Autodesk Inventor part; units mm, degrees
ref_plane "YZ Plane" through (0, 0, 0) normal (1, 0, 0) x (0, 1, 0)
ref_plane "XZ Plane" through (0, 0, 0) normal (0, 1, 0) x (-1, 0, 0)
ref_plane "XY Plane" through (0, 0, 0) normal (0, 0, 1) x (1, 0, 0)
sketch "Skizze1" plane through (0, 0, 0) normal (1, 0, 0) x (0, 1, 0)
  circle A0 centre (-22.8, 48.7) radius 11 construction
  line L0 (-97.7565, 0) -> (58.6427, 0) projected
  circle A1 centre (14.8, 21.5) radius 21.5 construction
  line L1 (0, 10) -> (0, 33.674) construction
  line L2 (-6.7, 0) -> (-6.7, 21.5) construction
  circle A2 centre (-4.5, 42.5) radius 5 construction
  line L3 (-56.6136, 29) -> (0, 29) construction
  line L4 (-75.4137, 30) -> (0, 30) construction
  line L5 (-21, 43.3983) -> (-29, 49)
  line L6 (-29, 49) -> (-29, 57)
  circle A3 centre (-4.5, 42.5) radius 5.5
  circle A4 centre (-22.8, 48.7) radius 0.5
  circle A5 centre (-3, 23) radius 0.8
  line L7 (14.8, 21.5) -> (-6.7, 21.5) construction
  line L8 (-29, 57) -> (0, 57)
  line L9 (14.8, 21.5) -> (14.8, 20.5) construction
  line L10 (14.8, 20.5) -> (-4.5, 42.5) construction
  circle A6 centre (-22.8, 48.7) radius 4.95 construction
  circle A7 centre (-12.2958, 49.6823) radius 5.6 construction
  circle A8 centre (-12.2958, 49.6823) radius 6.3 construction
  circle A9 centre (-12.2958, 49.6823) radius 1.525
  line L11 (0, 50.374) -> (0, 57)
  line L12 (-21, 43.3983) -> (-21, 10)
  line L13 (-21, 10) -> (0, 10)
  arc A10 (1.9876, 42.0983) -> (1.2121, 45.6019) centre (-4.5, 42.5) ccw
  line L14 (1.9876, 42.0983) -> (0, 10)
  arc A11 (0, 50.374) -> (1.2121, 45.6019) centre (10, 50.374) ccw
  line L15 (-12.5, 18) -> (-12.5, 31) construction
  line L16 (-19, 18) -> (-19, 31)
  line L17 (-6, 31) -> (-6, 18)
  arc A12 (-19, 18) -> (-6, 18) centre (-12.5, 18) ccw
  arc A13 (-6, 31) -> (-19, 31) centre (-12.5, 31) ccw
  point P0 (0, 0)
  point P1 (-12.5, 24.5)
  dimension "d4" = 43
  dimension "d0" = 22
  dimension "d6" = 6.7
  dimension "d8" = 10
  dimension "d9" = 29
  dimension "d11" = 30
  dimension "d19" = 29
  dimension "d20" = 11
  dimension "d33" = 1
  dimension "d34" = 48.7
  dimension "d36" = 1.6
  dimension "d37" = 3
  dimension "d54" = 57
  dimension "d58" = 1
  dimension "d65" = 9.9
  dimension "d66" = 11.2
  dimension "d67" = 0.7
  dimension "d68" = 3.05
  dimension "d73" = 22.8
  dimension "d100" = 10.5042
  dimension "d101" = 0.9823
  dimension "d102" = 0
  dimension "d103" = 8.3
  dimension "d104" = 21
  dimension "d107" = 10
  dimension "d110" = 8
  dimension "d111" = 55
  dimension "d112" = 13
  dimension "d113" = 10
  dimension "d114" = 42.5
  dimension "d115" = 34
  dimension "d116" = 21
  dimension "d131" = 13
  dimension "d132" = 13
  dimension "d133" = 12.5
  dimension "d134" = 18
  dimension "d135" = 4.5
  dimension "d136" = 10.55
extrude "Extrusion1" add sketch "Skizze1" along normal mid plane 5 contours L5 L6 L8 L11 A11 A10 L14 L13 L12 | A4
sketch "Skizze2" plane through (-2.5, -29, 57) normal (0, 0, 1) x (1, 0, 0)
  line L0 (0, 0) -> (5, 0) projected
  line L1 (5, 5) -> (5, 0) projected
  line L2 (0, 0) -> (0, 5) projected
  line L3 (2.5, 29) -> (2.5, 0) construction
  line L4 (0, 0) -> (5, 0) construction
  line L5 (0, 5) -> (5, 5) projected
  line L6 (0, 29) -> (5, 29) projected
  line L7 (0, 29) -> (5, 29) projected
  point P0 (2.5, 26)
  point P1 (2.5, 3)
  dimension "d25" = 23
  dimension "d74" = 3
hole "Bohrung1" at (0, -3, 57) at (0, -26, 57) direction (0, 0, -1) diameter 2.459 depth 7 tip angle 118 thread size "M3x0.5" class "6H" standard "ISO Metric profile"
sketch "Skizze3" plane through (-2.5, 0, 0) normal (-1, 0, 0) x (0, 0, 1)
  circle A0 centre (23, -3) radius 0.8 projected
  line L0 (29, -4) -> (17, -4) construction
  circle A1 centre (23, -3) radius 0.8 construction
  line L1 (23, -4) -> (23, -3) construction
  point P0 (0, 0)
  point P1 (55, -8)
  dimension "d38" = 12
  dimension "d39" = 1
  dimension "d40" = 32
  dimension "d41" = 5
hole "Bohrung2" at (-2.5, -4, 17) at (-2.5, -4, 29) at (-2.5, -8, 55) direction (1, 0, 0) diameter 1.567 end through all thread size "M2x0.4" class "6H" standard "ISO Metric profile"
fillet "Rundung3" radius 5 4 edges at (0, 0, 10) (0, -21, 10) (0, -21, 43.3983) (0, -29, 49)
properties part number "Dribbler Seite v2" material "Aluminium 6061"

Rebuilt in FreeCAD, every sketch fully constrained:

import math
import FreeCAD as App
import Part
import Sketcher
from FreeCAD import Vector
Q = App.Units.Quantity


def edges_at(feature, points):
    """Names of the edges that pass closest to the given points."""
    edges = feature.Shape.Edges
    near = lambda p: min(range(len(edges)), key=lambda i: edges[i].distToShape(Part.Vertex(*p))[0])
    return sorted({f"Edge{near(p) + 1}" for p in points})

doc = App.newDocument("Part")
body = doc.addObject("PartDesign::Body", "Body")

# Sketch on YZ plane
sketch1 = body.newObject("Sketcher::SketchObject", "Sketch")
sketch1.AttachmentSupport = (doc.getObject("YZ_Plane"), [""])
sketch1.MapMode = "FlatFace"
sketch1.addGeometry(Part.LineSegment(Vector(-29, 49, 0), Vector(-21, 43.3983, 0)), False)
sketch1.addGeometry(Part.LineSegment(Vector(-21, 43.3983, 0), Vector(-21, 10, 0)), False)
sketch1.addGeometry(Part.LineSegment(Vector(-21, 10, 0), Vector(0, 10, 0)), False)
sketch1.addGeometry(Part.LineSegment(Vector(0, 10, 0), Vector(1.9876, 42.0983, 0)), False)
sketch1.addGeometry(Part.ArcOfCircle(Part.Circle(Vector(-4.5, 42.5, 0), Vector(0, 0, 1), 6.500024), math.radians(-3.543124), math.radians(28.50374)), False)
sketch1.addGeometry(Part.ArcOfCircle(Part.Circle(Vector(10, 50.374, 0), Vector(0, 0, 1), 10), math.radians(180), math.radians(208.503321)), False)
sketch1.addGeometry(Part.LineSegment(Vector(0, 50.374, 0), Vector(0, 57, 0)), False)
sketch1.addGeometry(Part.LineSegment(Vector(0, 57, 0), Vector(-29, 57, 0)), False)
sketch1.addGeometry(Part.LineSegment(Vector(-29, 57, 0), Vector(-29, 49, 0)), False)
sketch1.addGeometry(Part.ArcOfCircle(Part.Circle(Vector(-12.5, 18, 0), Vector(0, 0, 1), 6.5), math.radians(180), math.radians(360)), False)
sketch1.addGeometry(Part.LineSegment(Vector(-19, 18, 0), Vector(-19, 31, 0)), False)
sketch1.addGeometry(Part.ArcOfCircle(Part.Circle(Vector(-12.5, 31, 0), Vector(0, 0, 1), 6.5), math.radians(0), math.radians(180)), False)
sketch1.addGeometry(Part.LineSegment(Vector(-6, 31, 0), Vector(-6, 18, 0)), False)
sketch1.addGeometry(Part.Circle(Vector(-3, 23, 0), Vector(0, 0, 1), 0.8), False)
sketch1.addGeometry(Part.Circle(Vector(-4.5, 42.5, 0), Vector(0, 0, 1), 5.5), False)
sketch1.addGeometry(Part.Circle(Vector(-12.2958, 49.6823, 0), Vector(0, 0, 1), 1.525), False)
sketch1.addConstraint(Sketcher.Constraint("Coincident", 0, 2, 1, 1))
sketch1.addConstraint(Sketcher.Constraint("Coincident", 1, 2, 2, 1))
sketch1.addConstraint(Sketcher.Constraint("Coincident", 2, 2, 3, 1))
sketch1.addConstraint(Sketcher.Constraint("Tangent", 3, 2, 4, 1))
sketch1.addConstraint(Sketcher.Constraint("Tangent", 4, 2, 5, 2))
sketch1.addConstraint(Sketcher.Constraint("Tangent", 5, 1, 6, 1))
sketch1.addConstraint(Sketcher.Constraint("Coincident", 6, 2, 7, 1))
sketch1.addConstraint(Sketcher.Constraint("Coincident", 7, 2, 8, 1))
sketch1.addConstraint(Sketcher.Constraint("Coincident", 8, 2, 0, 1))
sketch1.addConstraint(Sketcher.Constraint("Tangent", 9, 1, 10, 1))
sketch1.addConstraint(Sketcher.Constraint("Tangent", 10, 2, 11, 2))
sketch1.addConstraint(Sketcher.Constraint("Tangent", 11, 1, 12, 1))
sketch1.addConstraint(Sketcher.Constraint("Tangent", 12, 2, 9, 2))
sketch1.addConstraint(Sketcher.Constraint("Vertical", 1))
sketch1.addConstraint(Sketcher.Constraint("Horizontal", 2))
sketch1.addConstraint(Sketcher.Constraint("Vertical", 6))
sketch1.addConstraint(Sketcher.Constraint("Horizontal", 7))
sketch1.addConstraint(Sketcher.Constraint("Vertical", 8))
sketch1.addConstraint(Sketcher.Constraint("Vertical", 10))
sketch1.addConstraint(Sketcher.Constraint("Vertical", 12))
sketch1.addConstraint(Sketcher.Constraint("Coincident", 14, 3, 4, 3))
sketch1.addConstraint(Sketcher.Constraint("Equal", 4, 9))
sketch1.addConstraint(Sketcher.Constraint("PointOnObject", 2, 2, -2))
sketch1.addConstraint(Sketcher.Constraint("PointOnObject", 5, 1, -2))
sketch1.addConstraint(Sketcher.Constraint("Diameter", 14, Q("11 mm")))
sketch1.addConstraint(Sketcher.Constraint("Radius", 5, Q("10 mm")))
sketch1.addConstraint(Sketcher.Constraint("Diameter", 13, Q("1.6 mm")))
sketch1.addConstraint(Sketcher.Constraint("Radius", 4, Q("6.5 mm")))
sketch1.addConstraint(Sketcher.Constraint("Diameter", 15, Q("3.05 mm")))
sketch1.addConstraint(Sketcher.Constraint("DistanceX", 2, 1, 2, 2, Q("21 mm")))
sketch1.addConstraint(Sketcher.Constraint("DistanceX", 7, 2, 7, 1, Q("29 mm")))
sketch1.addConstraint(Sketcher.Constraint("DistanceY", 8, 2, 8, 1, Q("8 mm")))
sketch1.addConstraint(Sketcher.Constraint("DistanceY", 10, 1, 10, 2, Q("13 mm")))
sketch1.addConstraint(Sketcher.Constraint("DistanceY", -1, 1, 9, 3, Q("18 mm")))
sketch1.addConstraint(Sketcher.Constraint("DistanceX", 13, 3, -1, 1, Q("3 mm")))
sketch1.addConstraint(Sketcher.Constraint("DistanceY", -1, 1, 1, 2, Q("10 mm")))
sketch1.addConstraint(Sketcher.Constraint("DistanceY", -1, 1, 6, 2, Q("57 mm")))
sketch1.addConstraint(Sketcher.Constraint("DistanceX", 9, 3, 4, 3, Q("8 mm")))
sketch1.addConstraint(Sketcher.Constraint("DistanceY", 13, 3, 11, 3, Q("8 mm")))
sketch1.addConstraint(Sketcher.Constraint("DistanceX", 11, 1, 13, 3, Q("3 mm")))
sketch1.addConstraint(Sketcher.Constraint("DistanceY", -1, 1, 4, 3, Q("42.5 mm")))
sketch1.addConstraint(Sketcher.Constraint("Angle", 0, Q("-35.0002 deg")))
sketch1.addConstraint(Sketcher.Constraint("DistanceY", 0, 2, 15, 3, Q("6.284 mm")))
sketch1.addConstraint(Sketcher.Constraint("DistanceX", 15, 3, 4, 2, Q("13.508 mm")))
pad1 = body.newObject("PartDesign::Pad", "Pad")
pad1.Profile = sketch1
pad1.Length = 5
pad1.Midplane = True

# Sketch on XY plane
sketch2 = body.newObject("Sketcher::SketchObject", "Sketch001")
sketch2.AttachmentSupport = (doc.getObject("XY_Plane"), [""])
sketch2.MapMode = "FlatFace"
sketch2.AttachmentOffset = App.Placement(Vector(0, 0, 57), App.Rotation())
sketch2.addGeometry(Part.Circle(Vector(0, -3, 0), Vector(0, 0, 1), 1.2295), False)
sketch2.addGeometry(Part.Circle(Vector(0, -26, 0), Vector(0, 0, 1), 1.2295), False)
sketch2.addConstraint(Sketcher.Constraint("Equal", 0, 1))
sketch2.addConstraint(Sketcher.Constraint("PointOnObject", 0, 3, -2))
sketch2.addConstraint(Sketcher.Constraint("PointOnObject", 1, 3, -2))
sketch2.addConstraint(Sketcher.Constraint("Diameter", 0, Q("2.459 mm")))
sketch2.addConstraint(Sketcher.Constraint("DistanceY", 0, 3, -1, 1, Q("3 mm")))
sketch2.addConstraint(Sketcher.Constraint("DistanceY", 1, 3, -1, 1, Q("26 mm")))
doc.recompute()
hole = body.newObject("PartDesign::Hole", "Hole")
hole.Profile = sketch2
hole.ThreadType = "None"
hole.Diameter = 2.459
hole.DepthType = "Dimension"
hole.Depth = 7
hole.DrillPoint = "Angled"
hole.DrillPointAngle = 118

# Sketch on YZ plane
sketch3 = body.newObject("Sketcher::SketchObject", "Sketch002")
sketch3.AttachmentSupport = (doc.getObject("YZ_Plane"), [""])
sketch3.MapMode = "FlatFace"
sketch3.AttachmentOffset = App.Placement(Vector(0, 0, -2.5), App.Rotation())
sketch3.addGeometry(Part.Circle(Vector(-4, 17, 0), Vector(0, 0, 1), 0.7835), False)
sketch3.addGeometry(Part.Circle(Vector(-4, 29, 0), Vector(0, 0, 1), 0.7835), False)
sketch3.addGeometry(Part.Circle(Vector(-8, 55, 0), Vector(0, 0, 1), 0.7835), False)
sketch3.addConstraint(Sketcher.Constraint("Equal", 0, 1))
sketch3.addConstraint(Sketcher.Constraint("Equal", 1, 2))
sketch3.addConstraint(Sketcher.Constraint("Vertical", 0, 3, 1, 3))
sketch3.addConstraint(Sketcher.Constraint("Diameter", 0, Q("1.567 mm")))
sketch3.addConstraint(Sketcher.Constraint("DistanceX", 0, 3, -1, 1, Q("4 mm")))
sketch3.addConstraint(Sketcher.Constraint("DistanceY", -1, 1, 0, 3, Q("17 mm")))
sketch3.addConstraint(Sketcher.Constraint("DistanceY", -1, 1, 1, 3, Q("29 mm")))
sketch3.addConstraint(Sketcher.Constraint("DistanceX", 2, 3, -1, 1, Q("8 mm")))
sketch3.addConstraint(Sketcher.Constraint("DistanceY", -1, 1, 2, 3, Q("55 mm")))
doc.recompute()
hole2 = body.newObject("PartDesign::Hole", "Hole001")
hole2.Profile = sketch3
hole2.ThreadType = "None"
hole2.Diameter = 1.567
hole2.DepthType = "ThroughAll"
hole2.Reversed = True
doc.recompute()

fillet = body.newObject("PartDesign::Fillet", "Fillet")
fillet.Base = (hole2, edges_at(hole2, [
    (0, 0, 10),
    (0, -21, 10),
    (0, -21, 43.398),
    (0, -29, 49),
]))
fillet.Radius = 5

doc.recompute()
